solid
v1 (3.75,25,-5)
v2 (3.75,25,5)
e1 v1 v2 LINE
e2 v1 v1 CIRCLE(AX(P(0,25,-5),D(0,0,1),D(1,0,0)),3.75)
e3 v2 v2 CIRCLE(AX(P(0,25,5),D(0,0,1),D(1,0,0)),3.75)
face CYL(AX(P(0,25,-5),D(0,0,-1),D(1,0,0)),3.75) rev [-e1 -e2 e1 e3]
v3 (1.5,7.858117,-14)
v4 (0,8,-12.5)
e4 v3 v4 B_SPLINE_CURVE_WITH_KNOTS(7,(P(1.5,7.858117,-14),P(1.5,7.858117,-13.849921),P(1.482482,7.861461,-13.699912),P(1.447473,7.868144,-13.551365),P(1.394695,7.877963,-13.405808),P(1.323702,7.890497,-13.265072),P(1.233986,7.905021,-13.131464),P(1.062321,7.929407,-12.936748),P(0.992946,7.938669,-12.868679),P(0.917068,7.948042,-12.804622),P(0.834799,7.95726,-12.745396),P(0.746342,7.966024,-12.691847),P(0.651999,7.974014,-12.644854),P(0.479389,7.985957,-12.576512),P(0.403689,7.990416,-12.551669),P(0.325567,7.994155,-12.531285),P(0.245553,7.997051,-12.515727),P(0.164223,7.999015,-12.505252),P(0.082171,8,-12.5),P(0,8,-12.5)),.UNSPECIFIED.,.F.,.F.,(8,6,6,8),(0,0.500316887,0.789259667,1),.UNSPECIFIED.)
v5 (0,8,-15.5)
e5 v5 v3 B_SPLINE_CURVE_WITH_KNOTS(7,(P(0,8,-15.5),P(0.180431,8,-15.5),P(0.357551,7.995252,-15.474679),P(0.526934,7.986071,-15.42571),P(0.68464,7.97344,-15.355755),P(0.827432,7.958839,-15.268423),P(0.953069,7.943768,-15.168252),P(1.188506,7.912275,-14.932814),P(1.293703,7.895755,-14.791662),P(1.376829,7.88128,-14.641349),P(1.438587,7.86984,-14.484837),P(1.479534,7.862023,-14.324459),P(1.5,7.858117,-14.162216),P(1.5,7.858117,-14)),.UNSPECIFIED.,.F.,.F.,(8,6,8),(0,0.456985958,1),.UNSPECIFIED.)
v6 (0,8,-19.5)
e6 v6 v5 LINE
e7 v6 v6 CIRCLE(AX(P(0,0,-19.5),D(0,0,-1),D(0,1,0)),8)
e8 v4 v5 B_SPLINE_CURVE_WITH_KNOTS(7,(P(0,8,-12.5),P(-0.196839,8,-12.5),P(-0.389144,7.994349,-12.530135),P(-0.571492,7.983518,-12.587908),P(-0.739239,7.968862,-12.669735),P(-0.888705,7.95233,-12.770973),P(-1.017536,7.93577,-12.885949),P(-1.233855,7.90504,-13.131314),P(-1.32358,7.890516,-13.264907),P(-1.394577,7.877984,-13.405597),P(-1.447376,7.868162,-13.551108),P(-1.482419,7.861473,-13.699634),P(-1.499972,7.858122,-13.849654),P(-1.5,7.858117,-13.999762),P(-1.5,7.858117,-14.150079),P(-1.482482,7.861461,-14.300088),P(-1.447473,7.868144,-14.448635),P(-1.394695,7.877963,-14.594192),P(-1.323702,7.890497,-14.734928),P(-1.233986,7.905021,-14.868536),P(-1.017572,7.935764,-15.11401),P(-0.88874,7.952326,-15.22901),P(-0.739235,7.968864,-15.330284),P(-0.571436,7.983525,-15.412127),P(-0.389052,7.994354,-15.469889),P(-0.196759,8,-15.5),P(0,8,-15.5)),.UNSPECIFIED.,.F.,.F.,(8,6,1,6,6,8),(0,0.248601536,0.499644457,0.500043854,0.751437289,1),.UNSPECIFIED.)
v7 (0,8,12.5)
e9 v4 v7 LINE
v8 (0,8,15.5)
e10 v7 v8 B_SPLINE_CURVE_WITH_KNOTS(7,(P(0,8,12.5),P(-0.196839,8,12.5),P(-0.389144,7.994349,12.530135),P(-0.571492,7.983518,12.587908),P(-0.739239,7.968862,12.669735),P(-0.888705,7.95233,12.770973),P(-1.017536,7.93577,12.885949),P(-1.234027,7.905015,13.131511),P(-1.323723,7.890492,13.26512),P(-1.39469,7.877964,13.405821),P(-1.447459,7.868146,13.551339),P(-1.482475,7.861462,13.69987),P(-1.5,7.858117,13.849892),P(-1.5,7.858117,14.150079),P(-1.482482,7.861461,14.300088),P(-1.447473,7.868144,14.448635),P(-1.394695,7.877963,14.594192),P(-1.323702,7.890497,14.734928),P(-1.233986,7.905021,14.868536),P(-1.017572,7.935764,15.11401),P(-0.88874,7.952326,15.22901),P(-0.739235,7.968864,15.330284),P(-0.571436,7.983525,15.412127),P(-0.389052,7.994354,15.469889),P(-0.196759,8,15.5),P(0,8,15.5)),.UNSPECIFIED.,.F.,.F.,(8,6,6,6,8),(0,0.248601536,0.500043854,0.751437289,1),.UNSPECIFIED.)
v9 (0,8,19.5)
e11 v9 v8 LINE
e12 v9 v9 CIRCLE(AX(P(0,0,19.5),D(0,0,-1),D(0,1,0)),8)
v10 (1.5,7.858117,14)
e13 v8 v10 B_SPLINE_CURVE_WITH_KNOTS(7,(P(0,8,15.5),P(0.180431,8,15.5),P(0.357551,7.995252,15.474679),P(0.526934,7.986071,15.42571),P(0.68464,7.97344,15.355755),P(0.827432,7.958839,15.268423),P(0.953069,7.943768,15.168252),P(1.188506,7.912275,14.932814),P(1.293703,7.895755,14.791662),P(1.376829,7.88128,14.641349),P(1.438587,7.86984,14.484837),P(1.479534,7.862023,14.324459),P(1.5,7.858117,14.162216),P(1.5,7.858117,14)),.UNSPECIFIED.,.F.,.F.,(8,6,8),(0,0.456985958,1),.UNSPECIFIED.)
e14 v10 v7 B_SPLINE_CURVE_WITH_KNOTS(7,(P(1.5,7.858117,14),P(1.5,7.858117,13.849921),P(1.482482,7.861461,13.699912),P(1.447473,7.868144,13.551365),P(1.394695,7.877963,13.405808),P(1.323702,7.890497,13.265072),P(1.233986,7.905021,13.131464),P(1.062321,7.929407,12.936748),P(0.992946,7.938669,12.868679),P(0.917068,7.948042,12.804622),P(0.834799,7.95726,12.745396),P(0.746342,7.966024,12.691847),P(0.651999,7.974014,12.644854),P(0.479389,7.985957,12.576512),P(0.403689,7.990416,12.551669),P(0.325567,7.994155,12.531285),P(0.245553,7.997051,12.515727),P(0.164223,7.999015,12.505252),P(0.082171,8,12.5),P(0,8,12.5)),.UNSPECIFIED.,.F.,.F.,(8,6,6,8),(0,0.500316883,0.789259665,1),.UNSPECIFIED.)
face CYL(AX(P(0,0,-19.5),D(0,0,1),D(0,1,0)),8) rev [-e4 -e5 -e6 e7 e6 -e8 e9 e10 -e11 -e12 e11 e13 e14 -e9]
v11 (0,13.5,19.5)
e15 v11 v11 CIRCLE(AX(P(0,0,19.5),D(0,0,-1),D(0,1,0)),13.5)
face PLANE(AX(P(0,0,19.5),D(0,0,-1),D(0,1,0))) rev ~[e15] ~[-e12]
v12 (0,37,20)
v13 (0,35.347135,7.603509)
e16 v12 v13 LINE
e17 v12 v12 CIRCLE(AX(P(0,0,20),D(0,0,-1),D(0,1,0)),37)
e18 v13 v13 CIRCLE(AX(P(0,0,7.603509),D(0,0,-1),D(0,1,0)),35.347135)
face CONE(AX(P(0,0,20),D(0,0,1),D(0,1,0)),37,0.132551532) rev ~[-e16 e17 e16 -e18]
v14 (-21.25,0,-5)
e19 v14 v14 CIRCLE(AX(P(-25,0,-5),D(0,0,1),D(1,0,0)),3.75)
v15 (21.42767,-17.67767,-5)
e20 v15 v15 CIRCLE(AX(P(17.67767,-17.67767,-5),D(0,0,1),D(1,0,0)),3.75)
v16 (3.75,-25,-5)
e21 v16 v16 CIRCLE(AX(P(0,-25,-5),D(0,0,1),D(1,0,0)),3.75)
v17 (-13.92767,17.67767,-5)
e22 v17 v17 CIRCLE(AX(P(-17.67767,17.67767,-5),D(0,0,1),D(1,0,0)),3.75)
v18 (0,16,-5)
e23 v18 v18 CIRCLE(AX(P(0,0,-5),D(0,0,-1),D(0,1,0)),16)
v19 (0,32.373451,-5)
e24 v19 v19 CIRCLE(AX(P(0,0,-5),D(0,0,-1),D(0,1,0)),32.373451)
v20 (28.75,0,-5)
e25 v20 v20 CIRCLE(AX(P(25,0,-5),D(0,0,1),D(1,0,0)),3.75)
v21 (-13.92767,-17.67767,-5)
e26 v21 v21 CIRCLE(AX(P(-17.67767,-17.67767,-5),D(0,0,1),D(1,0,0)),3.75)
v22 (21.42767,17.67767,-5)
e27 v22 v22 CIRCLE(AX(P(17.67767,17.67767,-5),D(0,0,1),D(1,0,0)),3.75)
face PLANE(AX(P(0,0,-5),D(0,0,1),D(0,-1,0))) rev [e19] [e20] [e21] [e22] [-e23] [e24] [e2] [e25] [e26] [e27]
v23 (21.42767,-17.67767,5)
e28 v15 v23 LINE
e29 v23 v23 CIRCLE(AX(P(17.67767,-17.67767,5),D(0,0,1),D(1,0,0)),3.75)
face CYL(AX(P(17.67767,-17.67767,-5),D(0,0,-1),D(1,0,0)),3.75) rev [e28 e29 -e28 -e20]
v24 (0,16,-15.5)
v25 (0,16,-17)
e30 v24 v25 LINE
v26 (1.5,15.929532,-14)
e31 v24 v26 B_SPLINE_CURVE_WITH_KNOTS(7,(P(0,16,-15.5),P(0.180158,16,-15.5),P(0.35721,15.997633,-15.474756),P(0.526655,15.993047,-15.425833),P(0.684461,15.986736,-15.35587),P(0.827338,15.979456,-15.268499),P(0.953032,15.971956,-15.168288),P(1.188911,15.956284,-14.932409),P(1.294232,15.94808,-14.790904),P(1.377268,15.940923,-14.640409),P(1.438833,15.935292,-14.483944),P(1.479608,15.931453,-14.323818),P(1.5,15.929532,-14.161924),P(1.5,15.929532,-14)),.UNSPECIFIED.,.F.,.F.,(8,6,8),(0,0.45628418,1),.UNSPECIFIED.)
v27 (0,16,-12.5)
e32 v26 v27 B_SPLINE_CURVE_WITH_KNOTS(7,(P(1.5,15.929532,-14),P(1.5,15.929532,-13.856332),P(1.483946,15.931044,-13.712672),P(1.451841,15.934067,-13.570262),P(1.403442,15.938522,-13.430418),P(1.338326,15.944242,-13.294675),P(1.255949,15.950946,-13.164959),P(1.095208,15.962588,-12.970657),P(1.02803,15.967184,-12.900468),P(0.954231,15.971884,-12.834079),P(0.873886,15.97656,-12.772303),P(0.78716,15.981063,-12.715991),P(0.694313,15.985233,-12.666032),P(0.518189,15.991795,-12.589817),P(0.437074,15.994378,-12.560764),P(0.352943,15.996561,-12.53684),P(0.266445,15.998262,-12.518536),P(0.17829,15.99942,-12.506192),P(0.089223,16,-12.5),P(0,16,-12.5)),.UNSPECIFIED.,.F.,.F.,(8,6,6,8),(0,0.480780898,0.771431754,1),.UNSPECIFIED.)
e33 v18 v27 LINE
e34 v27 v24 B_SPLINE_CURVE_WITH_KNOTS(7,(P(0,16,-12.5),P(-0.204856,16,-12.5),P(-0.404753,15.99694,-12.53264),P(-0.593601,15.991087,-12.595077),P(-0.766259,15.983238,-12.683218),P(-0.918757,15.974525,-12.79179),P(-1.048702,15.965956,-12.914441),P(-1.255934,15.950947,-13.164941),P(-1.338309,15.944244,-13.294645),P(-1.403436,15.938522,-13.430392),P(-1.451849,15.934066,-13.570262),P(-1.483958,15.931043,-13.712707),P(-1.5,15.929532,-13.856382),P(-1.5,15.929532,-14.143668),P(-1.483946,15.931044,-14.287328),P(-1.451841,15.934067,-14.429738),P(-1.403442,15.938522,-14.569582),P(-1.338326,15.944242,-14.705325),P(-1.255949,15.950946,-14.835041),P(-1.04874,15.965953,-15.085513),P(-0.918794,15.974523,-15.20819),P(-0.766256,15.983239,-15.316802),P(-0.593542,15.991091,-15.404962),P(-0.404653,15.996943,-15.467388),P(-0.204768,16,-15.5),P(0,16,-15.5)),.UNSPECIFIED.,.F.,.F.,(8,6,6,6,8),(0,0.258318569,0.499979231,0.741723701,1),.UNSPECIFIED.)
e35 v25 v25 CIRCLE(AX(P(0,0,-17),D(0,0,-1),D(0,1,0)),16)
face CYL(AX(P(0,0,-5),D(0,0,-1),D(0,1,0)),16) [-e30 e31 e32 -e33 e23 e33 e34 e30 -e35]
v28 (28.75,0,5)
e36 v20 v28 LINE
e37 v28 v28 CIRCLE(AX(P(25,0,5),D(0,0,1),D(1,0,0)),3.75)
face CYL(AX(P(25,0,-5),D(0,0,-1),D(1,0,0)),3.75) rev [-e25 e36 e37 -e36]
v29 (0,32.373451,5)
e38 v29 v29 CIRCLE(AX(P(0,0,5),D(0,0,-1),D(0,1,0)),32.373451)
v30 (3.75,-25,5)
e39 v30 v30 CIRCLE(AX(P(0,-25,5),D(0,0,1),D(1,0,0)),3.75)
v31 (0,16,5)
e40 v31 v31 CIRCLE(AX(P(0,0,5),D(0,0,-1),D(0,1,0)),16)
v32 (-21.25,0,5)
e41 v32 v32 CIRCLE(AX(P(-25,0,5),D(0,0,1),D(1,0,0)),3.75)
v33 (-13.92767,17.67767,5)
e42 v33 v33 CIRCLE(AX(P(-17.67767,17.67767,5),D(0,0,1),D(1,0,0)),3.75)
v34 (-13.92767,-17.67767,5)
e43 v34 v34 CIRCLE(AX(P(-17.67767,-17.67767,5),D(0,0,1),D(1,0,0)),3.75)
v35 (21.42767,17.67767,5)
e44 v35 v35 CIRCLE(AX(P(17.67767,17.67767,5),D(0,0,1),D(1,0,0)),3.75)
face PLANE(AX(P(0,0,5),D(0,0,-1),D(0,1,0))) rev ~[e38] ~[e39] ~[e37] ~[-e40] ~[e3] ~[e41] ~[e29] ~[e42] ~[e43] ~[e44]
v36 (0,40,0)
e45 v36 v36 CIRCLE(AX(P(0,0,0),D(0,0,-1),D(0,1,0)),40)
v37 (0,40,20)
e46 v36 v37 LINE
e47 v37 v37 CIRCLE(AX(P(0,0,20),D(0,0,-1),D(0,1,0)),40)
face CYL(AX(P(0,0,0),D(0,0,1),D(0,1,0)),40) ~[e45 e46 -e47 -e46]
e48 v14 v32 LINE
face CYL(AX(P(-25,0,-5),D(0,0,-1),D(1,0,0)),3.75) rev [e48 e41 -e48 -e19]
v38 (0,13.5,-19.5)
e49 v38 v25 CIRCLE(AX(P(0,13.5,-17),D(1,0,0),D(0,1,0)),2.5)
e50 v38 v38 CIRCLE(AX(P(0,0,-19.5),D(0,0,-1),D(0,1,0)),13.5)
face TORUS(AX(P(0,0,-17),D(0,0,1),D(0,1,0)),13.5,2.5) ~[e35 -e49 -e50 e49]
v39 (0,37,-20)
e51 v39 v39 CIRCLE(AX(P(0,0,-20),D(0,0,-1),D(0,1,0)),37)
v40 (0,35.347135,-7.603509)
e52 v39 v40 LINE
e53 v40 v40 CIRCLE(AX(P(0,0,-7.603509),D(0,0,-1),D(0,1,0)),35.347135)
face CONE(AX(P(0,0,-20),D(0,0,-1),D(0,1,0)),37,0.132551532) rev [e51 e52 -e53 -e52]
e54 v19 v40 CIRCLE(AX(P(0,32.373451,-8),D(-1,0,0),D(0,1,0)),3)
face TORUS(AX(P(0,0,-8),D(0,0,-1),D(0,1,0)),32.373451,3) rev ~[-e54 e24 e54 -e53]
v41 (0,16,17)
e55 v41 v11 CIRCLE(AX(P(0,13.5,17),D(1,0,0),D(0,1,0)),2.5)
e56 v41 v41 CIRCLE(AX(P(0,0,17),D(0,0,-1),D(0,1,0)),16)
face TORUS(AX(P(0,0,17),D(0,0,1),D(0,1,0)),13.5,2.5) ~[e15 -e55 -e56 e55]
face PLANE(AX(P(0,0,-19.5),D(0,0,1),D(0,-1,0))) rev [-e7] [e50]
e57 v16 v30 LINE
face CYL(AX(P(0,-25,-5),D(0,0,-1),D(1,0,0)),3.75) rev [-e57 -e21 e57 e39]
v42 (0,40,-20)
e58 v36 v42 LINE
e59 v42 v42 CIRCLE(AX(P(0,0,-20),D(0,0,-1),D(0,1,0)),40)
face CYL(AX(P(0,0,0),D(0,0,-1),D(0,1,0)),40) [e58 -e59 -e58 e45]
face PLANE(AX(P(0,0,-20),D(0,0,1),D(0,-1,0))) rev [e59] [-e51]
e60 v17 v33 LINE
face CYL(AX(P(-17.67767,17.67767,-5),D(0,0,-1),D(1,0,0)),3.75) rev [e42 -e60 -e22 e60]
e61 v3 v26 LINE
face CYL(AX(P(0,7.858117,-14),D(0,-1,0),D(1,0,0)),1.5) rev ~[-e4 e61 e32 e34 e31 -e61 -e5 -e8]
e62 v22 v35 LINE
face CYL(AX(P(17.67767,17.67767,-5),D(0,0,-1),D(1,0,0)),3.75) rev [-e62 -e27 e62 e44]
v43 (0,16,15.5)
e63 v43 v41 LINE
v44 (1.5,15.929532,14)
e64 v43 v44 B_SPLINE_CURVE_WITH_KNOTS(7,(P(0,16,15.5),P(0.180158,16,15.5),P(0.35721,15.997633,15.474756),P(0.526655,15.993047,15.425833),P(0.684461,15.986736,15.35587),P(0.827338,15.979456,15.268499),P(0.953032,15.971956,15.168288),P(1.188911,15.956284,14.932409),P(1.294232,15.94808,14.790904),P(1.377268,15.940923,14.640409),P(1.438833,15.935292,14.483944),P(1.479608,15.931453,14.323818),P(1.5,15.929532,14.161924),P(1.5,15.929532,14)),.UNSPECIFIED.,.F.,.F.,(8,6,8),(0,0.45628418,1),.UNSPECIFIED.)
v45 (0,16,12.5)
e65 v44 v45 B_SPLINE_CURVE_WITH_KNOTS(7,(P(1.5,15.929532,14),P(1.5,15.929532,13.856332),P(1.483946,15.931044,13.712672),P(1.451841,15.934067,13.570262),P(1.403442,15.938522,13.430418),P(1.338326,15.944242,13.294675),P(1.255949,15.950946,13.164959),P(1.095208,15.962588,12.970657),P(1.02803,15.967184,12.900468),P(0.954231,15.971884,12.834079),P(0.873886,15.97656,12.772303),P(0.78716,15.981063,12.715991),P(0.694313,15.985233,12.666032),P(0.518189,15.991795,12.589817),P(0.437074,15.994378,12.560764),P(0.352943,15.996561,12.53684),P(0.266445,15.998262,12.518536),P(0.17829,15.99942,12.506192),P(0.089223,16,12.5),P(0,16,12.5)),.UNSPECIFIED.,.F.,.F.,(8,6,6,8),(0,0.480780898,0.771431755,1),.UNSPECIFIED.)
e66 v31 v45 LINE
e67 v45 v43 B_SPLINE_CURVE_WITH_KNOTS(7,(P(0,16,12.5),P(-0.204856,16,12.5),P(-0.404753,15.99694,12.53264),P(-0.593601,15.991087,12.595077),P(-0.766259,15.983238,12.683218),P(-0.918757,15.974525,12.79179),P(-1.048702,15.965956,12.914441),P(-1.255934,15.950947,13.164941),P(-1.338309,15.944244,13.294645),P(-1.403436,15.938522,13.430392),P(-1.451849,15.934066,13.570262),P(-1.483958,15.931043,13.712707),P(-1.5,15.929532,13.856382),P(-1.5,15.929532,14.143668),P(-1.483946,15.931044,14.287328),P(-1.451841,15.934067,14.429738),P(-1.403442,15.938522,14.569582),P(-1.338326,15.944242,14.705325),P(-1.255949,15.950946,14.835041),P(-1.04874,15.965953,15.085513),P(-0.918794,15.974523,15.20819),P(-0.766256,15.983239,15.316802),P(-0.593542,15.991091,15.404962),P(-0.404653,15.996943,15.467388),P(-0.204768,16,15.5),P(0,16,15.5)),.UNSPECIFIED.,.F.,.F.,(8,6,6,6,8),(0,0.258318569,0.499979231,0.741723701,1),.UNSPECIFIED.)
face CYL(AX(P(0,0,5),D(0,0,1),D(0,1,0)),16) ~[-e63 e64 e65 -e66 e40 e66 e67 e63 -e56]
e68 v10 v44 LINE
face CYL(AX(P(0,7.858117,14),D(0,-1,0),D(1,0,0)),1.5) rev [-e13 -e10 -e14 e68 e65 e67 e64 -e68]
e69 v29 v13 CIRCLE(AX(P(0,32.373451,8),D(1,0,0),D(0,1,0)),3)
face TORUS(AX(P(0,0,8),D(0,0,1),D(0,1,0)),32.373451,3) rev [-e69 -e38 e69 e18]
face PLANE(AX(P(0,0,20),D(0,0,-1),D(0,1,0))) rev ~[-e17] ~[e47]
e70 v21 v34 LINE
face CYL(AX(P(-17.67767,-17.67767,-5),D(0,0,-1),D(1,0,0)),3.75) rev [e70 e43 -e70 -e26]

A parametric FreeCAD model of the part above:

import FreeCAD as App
import Part
import Sketcher

V = App.Vector
Q = App.Units.Quantity


def edges_at(feature, points):
    """Names of the edges that pass closest to the given points."""
    edges = feature.Shape.Edges
    near = lambda p: min(range(len(edges)), key=lambda i: edges[i].distToShape(Part.Vertex(*p))[0])
    return sorted({f"Edge{near(p) + 1}" for p in points})

doc = App.newDocument("Part")
body = doc.addObject("PartDesign::Body", "Body")

sketch1 = doc.addObject("Sketcher::SketchObject", "Sketch")
body.addObject(sketch1)
sketch1.AttachmentSupport = (doc.YZ_Plane, [""])
sketch1.MapMode = "FlatFace"
sketch1.addGeometry(Part.LineSegment(V(8, 0, 0), V(40, 0, 0)), False)
sketch1.addGeometry(Part.LineSegment(V(40, 0, 0), V(40, 20, 0)), False)
sketch1.addGeometry(Part.LineSegment(V(40, 20, 0), V(37, 20, 0)), False)
sketch1.addGeometry(Part.LineSegment(V(37, 20, 0), V(35, 5, 0)), False)
sketch1.addGeometry(Part.LineSegment(V(35, 5, 0), V(16, 5, 0)), False)
sketch1.addGeometry(Part.LineSegment(V(16, 5, 0), V(16, 19.5, 0)), False)
sketch1.addGeometry(Part.LineSegment(V(16, 19.5, 0), V(8, 19.5, 0)), False)
sketch1.addGeometry(Part.LineSegment(V(8, 19.5, 0), V(8, 0, 0)), False)
sketch1.addConstraint(Sketcher.Constraint("Coincident", 0, 2, 1, 1))
sketch1.addConstraint(Sketcher.Constraint("Coincident", 1, 2, 2, 1))
sketch1.addConstraint(Sketcher.Constraint("Coincident", 2, 2, 3, 1))
sketch1.addConstraint(Sketcher.Constraint("Coincident", 3, 2, 4, 1))
sketch1.addConstraint(Sketcher.Constraint("Coincident", 4, 2, 5, 1))
sketch1.addConstraint(Sketcher.Constraint("Coincident", 5, 2, 6, 1))
sketch1.addConstraint(Sketcher.Constraint("Coincident", 6, 2, 7, 1))
sketch1.addConstraint(Sketcher.Constraint("Coincident", 7, 2, 0, 1))
sketch1.addConstraint(Sketcher.Constraint("Horizontal", 0))
sketch1.addConstraint(Sketcher.Constraint("Vertical", 1))
sketch1.addConstraint(Sketcher.Constraint("Horizontal", 2))
sketch1.addConstraint(Sketcher.Constraint("Horizontal", 4))
sketch1.addConstraint(Sketcher.Constraint("Vertical", 5))
sketch1.addConstraint(Sketcher.Constraint("Horizontal", 6))
sketch1.addConstraint(Sketcher.Constraint("Vertical", 7))
sketch1.addConstraint(Sketcher.Constraint("PointOnObject", 0, 2, -1))
sketch1.addConstraint(Sketcher.Constraint("DistanceX", 0, 1, 0, 2, Q("32 mm")))
sketch1.addConstraint(Sketcher.Constraint("DistanceX", 2, 2, 2, 1, Q("3 mm")))
sketch1.addConstraint(Sketcher.Constraint("DistanceX", 4, 2, 4, 1, Q("19 mm")))
sketch1.addConstraint(Sketcher.Constraint("DistanceX", 6, 2, 6, 1, Q("8 mm")))
sketch1.addConstraint(Sketcher.Constraint("DistanceY", 1, 1, 1, 2, Q("20 mm")))
sketch1.addConstraint(Sketcher.Constraint("DistanceY", 5, 1, 5, 2, Q("14.5 mm")))
sketch1.addConstraint(Sketcher.Constraint("DistanceY", 7, 2, 7, 1, Q("19.5 mm")))
sketch1.addConstraint(Sketcher.Constraint("DistanceX", -1, 1, 0, 2, Q("40 mm")))
revolution = doc.addObject("PartDesign::Revolution", "Revolution")
body.addObject(revolution)
revolution.Profile = sketch1
revolution.ReferenceAxis = (sketch1, ["V_Axis"])
revolution.Angle = 360

sketch2 = doc.addObject("Sketcher::SketchObject", "Sketch001")
body.addObject(sketch2)
sketch2.AttachmentSupport = (doc.XY_Plane, [""])
sketch2.MapMode = "FlatFace"
sketch2.AttachmentOffset = App.Placement(V(0, 0, 5), App.Rotation())
sketch2.addGeometry(Part.Circle(V(0, 25, 0), V(0, 0, 1), 3.8), False)
sketch2.addGeometry(Part.Circle(V(17.7, 17.7, 0), V(0, 0, 1), 3.8), False)
sketch2.addGeometry(Part.Circle(V(25, 0, 0), V(0, 0, 1), 3.8), False)
sketch2.addGeometry(Part.Circle(V(17.7, -17.7, 0), V(0, 0, 1), 3.8), False)
sketch2.addGeometry(Part.Circle(V(0, -25, 0), V(0, 0, 1), 3.8), False)
sketch2.addGeometry(Part.Circle(V(-17.7, -17.7, 0), V(0, 0, 1), 3.8), False)
sketch2.addGeometry(Part.Circle(V(-25, 0, 0), V(0, 0, 1), 3.8), False)
sketch2.addGeometry(Part.Circle(V(-17.7, 17.7, 0), V(0, 0, 1), 3.8), False)
sketch2.addConstraint(Sketcher.Constraint("Equal", 0, 1))
sketch2.addConstraint(Sketcher.Constraint("Equal", 1, 2))
sketch2.addConstraint(Sketcher.Constraint("Equal", 2, 3))
sketch2.addConstraint(Sketcher.Constraint("Equal", 3, 4))
sketch2.addConstraint(Sketcher.Constraint("Equal", 4, 5))
sketch2.addConstraint(Sketcher.Constraint("Equal", 5, 6))
sketch2.addConstraint(Sketcher.Constraint("Equal", 6, 7))
sketch2.addConstraint(Sketcher.Constraint("Symmetric", 0, 3, 4, 3, -1, 1))
sketch2.addConstraint(Sketcher.Constraint("Symmetric", 1, 3, 5, 3, -1, 1))
sketch2.addConstraint(Sketcher.Constraint("Symmetric", 2, 3, 6, 3, -1, 1))
sketch2.addConstraint(Sketcher.Constraint("Symmetric", 3, 3, 7, 3, -1, 1))
sketch2.addConstraint(Sketcher.Constraint("Symmetric", 3, 3, 5, 3, -2))
sketch2.addConstraint(Sketcher.Constraint("PointOnObject", 0, 3, -2))
sketch2.addConstraint(Sketcher.Constraint("PointOnObject", 2, 3, -1))
sketch2.addConstraint(Sketcher.Constraint("Diameter", 0, Q("7.5 mm")))
sketch2.addConstraint(Sketcher.Constraint("DistanceY", -1, 1, 0, 3, Q("25 mm")))
sketch2.addConstraint(Sketcher.Constraint("DistanceX", -1, 1, 2, 3, Q("25 mm")))
sketch2.addConstraint(Sketcher.Constraint("DistanceX", -1, 1, 1, 3, Q("17.67767 mm")))
sketch2.addConstraint(Sketcher.Constraint("DistanceY", -1, 1, 1, 3, Q("17.67767 mm")))
pocket1 = doc.addObject("PartDesign::Pocket", "Pocket")
body.addObject(pocket1)
pocket1.Profile = sketch2
pocket1.Type = "ThroughAll"

sketch3 = doc.addObject("Sketcher::SketchObject", "Sketch002")
body.addObject(sketch3)
sketch3.AttachmentSupport = (doc.XZ_Plane, [""])
sketch3.MapMode = "FlatFace"
sketch3.AttachmentOffset = App.Placement(V(0, 0, -7.858117), App.Rotation())
sketch3.addGeometry(Part.Circle(V(0, 14, 0), V(0, 0, 1), 1.5), False)
sketch3.addConstraint(Sketcher.Constraint("PointOnObject", 0, 3, -2))
sketch3.addConstraint(Sketcher.Constraint("Diameter", 0, Q("3 mm")))
sketch3.addConstraint(Sketcher.Constraint("DistanceY", -1, 1, 0, 3, Q("14 mm")))
pocket2 = doc.addObject("PartDesign::Pocket", "Pocket001")
body.addObject(pocket2)
pocket2.Profile = sketch3
pocket2.Length = 8.141883
doc.recompute()

fillet = doc.addObject("PartDesign::Fillet", "Fillet")
body.addObject(fillet)
fillet.Base = (pocket2, edges_at(pocket2, [(0, -35, 5)]))
fillet.Radius = 3
doc.recompute()

fillet2 = doc.addObject("PartDesign::Fillet", "Fillet001")
body.addObject(fillet2)
fillet2.Base = (fillet, edges_at(fillet, [(0, -16, 19.5)]))
fillet2.Radius = 2.5
doc.recompute()

mirrored = doc.addObject("PartDesign::Mirrored", "Mirrored")
body.addObject(mirrored)
mirrored.Originals = [revolution, pocket1, pocket2]
mirrored.MirrorPlane = (doc.XY_Plane, [""])
body.Tip = mirrored
doc.recompute()

fillet3 = doc.addObject("PartDesign::Fillet", "Fillet002")
body.addObject(fillet3)
fillet3.Base = (mirrored, edges_at(mirrored, [(0, -35, -5)]))
fillet3.Radius = 3
doc.recompute()

fillet4 = doc.addObject("PartDesign::Fillet", "Fillet003")
body.addObject(fillet4)
fillet4.Base = (fillet3, edges_at(fillet3, [(0, -16, -19.5)]))
fillet4.Radius = 2.5

doc.recompute()
